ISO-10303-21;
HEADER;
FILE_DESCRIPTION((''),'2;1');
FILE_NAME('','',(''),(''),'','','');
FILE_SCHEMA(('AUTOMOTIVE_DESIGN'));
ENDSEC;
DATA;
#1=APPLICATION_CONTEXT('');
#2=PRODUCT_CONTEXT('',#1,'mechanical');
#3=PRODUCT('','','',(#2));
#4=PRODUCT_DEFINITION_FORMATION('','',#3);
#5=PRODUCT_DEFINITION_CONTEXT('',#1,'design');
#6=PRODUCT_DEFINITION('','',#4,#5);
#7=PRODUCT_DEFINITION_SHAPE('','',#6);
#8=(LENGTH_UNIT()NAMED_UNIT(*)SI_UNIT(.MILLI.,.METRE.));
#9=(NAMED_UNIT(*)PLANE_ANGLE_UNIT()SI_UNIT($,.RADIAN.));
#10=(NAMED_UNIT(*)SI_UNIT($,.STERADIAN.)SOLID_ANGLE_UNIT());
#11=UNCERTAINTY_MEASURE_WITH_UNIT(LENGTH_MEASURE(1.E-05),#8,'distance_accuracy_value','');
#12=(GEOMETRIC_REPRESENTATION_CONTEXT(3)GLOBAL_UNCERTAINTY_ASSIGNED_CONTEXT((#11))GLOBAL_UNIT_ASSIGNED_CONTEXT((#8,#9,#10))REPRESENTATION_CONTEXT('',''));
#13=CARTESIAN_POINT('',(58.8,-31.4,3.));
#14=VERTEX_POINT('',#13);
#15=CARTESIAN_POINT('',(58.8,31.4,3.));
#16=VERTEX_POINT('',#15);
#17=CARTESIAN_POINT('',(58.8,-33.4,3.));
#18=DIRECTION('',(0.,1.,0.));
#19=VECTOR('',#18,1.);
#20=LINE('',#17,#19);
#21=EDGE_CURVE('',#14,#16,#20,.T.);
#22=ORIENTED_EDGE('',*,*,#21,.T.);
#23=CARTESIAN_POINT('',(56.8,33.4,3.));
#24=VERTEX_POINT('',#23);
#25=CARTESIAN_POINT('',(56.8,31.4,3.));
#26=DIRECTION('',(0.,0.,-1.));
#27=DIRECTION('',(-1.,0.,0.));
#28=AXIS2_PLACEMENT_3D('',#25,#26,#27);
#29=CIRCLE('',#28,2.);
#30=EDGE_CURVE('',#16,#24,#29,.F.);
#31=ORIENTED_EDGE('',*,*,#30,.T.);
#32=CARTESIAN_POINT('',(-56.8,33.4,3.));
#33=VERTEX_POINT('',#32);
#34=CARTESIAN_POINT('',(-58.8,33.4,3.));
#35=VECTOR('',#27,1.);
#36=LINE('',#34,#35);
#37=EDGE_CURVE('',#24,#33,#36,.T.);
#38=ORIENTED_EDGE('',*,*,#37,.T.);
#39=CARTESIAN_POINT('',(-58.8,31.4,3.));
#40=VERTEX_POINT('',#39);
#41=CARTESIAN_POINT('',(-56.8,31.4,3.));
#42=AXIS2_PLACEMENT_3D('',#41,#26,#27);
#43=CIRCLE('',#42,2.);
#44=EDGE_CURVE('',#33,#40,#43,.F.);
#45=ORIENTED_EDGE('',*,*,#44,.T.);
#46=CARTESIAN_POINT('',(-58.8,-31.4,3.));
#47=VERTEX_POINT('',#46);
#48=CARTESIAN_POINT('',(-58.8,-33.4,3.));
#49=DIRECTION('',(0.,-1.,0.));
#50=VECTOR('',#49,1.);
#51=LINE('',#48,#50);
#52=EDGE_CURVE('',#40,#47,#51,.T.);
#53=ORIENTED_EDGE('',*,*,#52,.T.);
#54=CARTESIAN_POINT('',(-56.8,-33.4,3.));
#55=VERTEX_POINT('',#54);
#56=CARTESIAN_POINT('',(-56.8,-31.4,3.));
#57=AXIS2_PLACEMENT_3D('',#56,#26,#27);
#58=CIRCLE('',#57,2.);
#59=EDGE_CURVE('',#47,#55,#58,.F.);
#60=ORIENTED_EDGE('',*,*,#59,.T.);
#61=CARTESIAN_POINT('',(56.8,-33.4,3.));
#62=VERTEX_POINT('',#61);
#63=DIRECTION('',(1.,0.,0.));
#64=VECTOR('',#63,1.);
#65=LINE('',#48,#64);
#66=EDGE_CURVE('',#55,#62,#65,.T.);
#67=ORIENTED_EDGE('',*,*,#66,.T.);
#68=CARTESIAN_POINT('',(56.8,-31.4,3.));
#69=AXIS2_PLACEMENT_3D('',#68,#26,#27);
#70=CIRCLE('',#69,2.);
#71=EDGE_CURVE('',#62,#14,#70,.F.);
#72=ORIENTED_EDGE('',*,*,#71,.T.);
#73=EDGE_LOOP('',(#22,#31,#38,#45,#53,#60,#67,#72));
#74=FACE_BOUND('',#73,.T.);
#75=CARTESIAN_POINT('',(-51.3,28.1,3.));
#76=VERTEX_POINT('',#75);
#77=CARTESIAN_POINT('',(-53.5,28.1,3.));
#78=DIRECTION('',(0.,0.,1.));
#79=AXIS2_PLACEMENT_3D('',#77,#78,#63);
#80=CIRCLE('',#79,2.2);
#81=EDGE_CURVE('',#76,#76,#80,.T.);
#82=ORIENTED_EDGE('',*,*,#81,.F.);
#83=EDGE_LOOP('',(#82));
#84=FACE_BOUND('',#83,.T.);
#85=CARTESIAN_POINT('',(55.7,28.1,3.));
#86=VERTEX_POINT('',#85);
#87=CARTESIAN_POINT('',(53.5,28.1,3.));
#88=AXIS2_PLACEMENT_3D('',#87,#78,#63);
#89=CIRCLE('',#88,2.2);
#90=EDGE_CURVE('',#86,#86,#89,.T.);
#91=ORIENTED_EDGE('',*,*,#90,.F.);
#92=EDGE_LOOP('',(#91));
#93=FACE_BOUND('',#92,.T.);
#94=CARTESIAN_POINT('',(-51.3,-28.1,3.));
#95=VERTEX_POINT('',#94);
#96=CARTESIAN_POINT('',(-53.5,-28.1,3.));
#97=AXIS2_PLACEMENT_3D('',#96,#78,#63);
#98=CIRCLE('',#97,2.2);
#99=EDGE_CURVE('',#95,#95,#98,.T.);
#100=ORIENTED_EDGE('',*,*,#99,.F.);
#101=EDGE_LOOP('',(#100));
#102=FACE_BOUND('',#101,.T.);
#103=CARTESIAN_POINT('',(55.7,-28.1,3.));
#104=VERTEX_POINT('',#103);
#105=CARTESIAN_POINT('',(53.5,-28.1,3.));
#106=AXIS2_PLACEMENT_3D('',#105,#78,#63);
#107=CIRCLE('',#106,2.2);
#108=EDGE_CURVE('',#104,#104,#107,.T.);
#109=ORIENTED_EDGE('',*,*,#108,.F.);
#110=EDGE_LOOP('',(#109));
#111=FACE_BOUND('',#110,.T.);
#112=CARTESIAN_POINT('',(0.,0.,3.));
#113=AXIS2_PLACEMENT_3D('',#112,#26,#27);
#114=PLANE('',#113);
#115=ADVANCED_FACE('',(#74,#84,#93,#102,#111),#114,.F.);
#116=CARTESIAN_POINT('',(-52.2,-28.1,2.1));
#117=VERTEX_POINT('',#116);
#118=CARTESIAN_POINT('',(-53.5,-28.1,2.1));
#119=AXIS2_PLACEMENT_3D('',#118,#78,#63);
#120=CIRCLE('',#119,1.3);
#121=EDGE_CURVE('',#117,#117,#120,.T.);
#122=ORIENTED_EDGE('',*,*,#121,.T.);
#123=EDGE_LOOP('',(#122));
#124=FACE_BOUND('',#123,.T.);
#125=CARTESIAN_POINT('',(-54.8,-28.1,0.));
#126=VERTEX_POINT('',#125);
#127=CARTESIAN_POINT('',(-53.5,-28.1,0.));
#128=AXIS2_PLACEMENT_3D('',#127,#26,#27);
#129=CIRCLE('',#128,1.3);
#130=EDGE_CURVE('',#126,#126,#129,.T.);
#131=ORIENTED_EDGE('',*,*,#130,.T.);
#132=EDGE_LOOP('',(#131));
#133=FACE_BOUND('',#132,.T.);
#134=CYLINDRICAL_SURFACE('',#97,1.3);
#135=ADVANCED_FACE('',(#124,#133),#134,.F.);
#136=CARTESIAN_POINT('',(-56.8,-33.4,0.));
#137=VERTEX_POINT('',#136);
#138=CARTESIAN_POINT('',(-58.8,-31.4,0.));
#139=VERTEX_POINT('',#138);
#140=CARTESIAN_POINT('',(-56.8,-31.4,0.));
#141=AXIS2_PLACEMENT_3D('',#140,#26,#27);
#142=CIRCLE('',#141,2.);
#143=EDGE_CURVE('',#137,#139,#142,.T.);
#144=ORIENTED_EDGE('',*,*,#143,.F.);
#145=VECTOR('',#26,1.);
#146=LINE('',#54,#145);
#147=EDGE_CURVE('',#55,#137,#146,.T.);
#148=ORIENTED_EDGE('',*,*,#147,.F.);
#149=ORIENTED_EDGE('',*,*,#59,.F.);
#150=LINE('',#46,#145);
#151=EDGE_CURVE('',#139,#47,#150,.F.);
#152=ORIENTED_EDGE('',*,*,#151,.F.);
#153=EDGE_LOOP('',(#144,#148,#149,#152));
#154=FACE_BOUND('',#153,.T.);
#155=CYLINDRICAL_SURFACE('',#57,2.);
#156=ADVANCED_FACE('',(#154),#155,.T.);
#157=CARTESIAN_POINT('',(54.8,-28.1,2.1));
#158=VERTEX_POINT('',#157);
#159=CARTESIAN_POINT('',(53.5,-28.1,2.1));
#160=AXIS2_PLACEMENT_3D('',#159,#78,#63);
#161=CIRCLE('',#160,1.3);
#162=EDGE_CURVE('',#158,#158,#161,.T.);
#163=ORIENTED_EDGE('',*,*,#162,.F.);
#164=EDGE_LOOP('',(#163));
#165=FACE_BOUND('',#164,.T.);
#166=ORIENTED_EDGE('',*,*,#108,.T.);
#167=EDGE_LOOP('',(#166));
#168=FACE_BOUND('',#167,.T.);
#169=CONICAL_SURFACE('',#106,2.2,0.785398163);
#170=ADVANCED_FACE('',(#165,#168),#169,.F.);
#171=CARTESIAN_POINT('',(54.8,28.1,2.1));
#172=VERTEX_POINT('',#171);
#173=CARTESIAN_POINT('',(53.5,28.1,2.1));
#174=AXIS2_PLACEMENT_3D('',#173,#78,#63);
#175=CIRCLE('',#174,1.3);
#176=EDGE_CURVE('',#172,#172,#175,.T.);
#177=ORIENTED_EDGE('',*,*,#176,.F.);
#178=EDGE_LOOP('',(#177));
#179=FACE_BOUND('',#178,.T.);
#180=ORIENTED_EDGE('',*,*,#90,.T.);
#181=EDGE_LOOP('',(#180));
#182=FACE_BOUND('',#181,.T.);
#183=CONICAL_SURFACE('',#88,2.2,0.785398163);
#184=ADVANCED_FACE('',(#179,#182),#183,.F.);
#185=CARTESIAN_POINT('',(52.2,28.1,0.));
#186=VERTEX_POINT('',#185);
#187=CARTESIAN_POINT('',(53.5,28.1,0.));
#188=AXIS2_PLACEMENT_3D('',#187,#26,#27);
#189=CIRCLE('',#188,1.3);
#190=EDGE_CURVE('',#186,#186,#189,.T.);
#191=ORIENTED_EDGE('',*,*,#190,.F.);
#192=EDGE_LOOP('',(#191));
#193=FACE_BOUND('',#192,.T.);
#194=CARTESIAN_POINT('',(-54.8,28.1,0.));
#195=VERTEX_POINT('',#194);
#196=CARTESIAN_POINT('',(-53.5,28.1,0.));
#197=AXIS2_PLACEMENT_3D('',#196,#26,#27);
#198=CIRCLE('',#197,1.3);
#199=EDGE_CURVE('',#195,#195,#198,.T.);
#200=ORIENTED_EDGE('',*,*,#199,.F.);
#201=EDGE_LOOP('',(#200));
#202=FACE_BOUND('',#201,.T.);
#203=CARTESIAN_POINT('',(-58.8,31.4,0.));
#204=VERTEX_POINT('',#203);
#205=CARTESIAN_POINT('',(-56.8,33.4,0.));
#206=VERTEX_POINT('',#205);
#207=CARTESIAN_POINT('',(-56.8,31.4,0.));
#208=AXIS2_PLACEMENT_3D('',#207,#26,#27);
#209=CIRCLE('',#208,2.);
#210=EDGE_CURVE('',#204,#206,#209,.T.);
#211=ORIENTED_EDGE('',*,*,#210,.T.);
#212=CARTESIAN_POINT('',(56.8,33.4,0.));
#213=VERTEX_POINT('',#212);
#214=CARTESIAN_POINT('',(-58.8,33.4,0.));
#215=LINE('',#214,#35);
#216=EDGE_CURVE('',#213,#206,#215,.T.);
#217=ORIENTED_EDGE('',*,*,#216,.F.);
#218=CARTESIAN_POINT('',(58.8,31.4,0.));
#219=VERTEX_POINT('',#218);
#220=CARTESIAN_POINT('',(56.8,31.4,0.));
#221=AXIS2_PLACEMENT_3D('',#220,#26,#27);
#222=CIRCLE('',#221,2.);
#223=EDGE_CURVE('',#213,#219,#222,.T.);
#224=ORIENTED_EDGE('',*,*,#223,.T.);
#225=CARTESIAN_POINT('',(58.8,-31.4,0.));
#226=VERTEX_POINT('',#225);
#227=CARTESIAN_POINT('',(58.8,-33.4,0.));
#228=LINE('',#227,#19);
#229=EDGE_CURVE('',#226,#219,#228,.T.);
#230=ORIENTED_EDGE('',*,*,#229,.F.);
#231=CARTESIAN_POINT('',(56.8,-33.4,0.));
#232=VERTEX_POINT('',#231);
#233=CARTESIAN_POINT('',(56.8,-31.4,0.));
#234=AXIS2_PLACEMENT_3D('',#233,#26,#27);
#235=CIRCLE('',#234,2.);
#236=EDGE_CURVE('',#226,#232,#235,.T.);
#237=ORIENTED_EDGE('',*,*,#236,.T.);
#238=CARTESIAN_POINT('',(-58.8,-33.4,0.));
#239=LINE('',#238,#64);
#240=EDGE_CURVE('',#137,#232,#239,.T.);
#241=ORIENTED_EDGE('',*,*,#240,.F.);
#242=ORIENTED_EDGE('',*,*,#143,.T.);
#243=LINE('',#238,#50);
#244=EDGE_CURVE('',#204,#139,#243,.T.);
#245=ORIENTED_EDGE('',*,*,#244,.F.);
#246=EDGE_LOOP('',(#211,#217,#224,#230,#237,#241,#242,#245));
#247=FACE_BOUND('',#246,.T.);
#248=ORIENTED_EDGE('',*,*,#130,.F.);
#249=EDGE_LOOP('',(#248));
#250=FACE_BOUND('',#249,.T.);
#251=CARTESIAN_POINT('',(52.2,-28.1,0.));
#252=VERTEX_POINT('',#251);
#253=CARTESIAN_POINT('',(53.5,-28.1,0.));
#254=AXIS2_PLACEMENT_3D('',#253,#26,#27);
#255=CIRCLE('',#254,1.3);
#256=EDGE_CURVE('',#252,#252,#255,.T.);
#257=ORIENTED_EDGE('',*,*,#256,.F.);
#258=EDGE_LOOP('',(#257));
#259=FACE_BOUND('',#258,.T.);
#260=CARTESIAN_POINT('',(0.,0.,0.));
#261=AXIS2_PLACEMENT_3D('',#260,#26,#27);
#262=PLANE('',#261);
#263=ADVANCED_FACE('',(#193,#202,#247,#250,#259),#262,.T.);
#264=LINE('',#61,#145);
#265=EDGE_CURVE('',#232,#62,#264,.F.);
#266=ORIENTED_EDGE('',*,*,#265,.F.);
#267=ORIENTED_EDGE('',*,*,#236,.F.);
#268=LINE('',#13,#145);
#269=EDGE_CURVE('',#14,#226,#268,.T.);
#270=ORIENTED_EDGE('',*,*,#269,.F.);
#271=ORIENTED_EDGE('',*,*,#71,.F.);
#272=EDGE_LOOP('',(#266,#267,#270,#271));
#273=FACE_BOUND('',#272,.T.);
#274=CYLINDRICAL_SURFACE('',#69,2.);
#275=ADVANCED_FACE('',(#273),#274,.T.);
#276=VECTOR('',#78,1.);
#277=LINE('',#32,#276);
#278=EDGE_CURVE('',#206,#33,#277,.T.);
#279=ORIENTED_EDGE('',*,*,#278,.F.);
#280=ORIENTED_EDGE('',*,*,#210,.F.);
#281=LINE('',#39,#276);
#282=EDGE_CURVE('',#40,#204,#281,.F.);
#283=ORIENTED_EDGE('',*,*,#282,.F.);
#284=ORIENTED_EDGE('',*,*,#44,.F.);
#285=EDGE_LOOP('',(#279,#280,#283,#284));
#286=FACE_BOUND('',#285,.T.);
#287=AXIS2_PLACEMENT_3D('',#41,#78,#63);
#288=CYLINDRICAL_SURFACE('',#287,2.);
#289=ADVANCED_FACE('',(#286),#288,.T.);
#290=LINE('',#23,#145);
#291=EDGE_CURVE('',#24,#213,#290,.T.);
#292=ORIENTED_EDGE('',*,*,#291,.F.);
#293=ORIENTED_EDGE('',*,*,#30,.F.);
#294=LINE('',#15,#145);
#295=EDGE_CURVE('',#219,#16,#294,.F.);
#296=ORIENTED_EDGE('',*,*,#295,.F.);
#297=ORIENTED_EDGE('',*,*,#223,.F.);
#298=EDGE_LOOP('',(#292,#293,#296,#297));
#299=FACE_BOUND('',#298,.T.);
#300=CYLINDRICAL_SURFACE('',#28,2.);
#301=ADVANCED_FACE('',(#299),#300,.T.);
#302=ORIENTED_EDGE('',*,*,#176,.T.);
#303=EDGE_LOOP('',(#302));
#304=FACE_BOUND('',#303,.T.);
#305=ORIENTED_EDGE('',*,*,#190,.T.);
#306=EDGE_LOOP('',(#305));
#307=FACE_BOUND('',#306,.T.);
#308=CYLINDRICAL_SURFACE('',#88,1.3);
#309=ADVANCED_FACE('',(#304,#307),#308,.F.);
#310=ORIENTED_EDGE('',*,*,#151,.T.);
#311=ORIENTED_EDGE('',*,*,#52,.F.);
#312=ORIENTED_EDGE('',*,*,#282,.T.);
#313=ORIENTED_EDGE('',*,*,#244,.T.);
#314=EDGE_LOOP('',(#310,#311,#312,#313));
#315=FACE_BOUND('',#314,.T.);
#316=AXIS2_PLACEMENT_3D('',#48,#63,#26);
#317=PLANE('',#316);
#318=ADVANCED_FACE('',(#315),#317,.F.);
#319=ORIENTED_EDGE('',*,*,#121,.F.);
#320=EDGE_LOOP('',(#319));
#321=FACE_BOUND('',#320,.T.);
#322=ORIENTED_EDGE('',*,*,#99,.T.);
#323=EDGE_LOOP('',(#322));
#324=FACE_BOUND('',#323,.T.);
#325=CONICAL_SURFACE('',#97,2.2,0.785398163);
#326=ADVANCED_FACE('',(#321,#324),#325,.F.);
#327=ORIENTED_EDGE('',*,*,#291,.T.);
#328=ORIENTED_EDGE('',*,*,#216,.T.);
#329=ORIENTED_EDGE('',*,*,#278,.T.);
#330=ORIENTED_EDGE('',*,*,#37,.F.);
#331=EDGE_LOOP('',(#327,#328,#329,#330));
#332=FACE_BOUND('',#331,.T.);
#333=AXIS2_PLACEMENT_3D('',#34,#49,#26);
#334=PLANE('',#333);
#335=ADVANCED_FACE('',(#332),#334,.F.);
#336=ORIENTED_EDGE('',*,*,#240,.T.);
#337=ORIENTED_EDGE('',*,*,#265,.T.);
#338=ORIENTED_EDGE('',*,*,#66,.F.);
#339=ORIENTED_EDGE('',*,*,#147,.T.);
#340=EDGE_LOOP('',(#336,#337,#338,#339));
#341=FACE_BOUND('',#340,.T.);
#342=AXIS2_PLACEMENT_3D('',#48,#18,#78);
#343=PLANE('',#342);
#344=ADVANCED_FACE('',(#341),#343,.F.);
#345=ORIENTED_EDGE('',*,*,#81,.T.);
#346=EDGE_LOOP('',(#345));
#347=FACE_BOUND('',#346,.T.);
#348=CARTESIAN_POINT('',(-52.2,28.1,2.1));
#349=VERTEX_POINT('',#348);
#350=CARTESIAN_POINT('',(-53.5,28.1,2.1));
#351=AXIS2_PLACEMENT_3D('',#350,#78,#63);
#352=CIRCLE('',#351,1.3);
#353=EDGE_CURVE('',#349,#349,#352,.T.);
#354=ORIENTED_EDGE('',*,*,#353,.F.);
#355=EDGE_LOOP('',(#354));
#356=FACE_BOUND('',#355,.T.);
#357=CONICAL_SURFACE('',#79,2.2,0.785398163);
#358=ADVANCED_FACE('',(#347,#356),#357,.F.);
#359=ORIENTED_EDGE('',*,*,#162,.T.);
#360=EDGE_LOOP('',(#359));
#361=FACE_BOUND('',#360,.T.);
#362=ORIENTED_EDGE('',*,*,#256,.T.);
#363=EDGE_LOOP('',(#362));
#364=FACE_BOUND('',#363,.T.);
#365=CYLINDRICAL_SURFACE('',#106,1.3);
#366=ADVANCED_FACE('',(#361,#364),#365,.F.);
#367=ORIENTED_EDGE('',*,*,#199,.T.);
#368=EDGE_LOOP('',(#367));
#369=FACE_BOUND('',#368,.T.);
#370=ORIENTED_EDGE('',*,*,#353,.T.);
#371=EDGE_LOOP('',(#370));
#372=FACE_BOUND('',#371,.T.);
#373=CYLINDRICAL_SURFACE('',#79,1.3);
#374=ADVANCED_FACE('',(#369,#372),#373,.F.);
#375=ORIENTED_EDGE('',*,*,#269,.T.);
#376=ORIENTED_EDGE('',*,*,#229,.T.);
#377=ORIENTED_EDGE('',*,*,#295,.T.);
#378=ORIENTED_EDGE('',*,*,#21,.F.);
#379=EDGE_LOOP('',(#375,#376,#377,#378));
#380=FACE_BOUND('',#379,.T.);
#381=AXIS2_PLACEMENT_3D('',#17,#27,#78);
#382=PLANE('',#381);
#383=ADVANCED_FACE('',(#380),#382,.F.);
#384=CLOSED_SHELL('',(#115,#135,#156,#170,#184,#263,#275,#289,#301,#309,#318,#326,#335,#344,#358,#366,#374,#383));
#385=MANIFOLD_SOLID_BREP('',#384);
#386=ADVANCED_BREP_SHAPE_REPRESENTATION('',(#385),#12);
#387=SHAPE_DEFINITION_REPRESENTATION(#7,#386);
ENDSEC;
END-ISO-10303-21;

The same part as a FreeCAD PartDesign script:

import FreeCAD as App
import Part
import Sketcher

V = App.Vector


def edges_at(feature, points):
    """Names of the edges that pass closest to the given points."""
    edges = feature.Shape.Edges
    near = lambda p: min(range(len(edges)), key=lambda i: edges[i].distToShape(Part.Vertex(*p))[0])
    return sorted({f"Edge{near(p) + 1}" for p in points})


def add_polygon(sketch, points):
    """Adds a closed chain of lines whose ends are joined by coincident constraints."""
    first, n = sketch.GeometryCount, len(points)
    for a, b in zip(points, points[1:] + points[:1]):
        sketch.addGeometry(Part.LineSegment(App.Vector(*a, 0), App.Vector(*b, 0)), False)
    for i in range(n):
        sketch.addConstraint(Sketcher.Constraint("Coincident", first + i, 2, first + (i + 1) % n, 1))

doc = App.newDocument("Part")
body = doc.addObject("PartDesign::Body", "Body")

# Sketch on XY plane
sketch1 = body.newObject("Sketcher::SketchObject", "Sketch")
sketch1.AttachmentSupport = (doc.getObject("XY_Plane"), [""])
sketch1.MapMode = "FlatFace"
add_polygon(sketch1, [(-58.8, 33.4), (-58.8, -33.4), (58.8, -33.4), (58.8, 33.4)])  # lines 0-3
sketch1.addConstraint([
    Sketcher.Constraint("Vertical", 0),
    Sketcher.Constraint("Horizontal", 1),
    Sketcher.Constraint("Vertical", 2),
    Sketcher.Constraint("Horizontal", 3),
    Sketcher.Constraint("Symmetric", 0, 2, 2, 2, -1, 1),
    Sketcher.Constraint("DistanceX", 1, 1, 1, 2, 117.6),
    Sketcher.Constraint("DistanceY", 0, 2, 0, 1, 66.8),
])
pad1 = body.newObject("PartDesign::Pad", "Pad")
pad1.Profile = sketch1
pad1.Length = 3
doc.recompute()

fillet = body.newObject("PartDesign::Fillet", "Fillet")
fillet.Base = (pad1, edges_at(pad1, [(-58.8, 33.4, 1.5)]))
fillet.Radius = 2
doc.recompute()

fillet2 = body.newObject("PartDesign::Fillet", "Fillet001")
fillet2.Base = (fillet, edges_at(fillet, [(58.8, 33.4, 1.5)]))
fillet2.Radius = 2
doc.recompute()

fillet3 = body.newObject("PartDesign::Fillet", "Fillet002")
fillet3.Base = (fillet2, edges_at(fillet2, [(58.8, -33.4, 1.5)]))
fillet3.Radius = 2
doc.recompute()

fillet4 = body.newObject("PartDesign::Fillet", "Fillet003")
fillet4.Base = (fillet3, edges_at(fillet3, [(-58.8, -33.4, 1.5)]))
fillet4.Radius = 2

# Sketch on XY plane
sketch2 = body.newObject("Sketcher::SketchObject", "Sketch001")
sketch2.AttachmentSupport = (doc.getObject("XY_Plane"), [""])
sketch2.MapMode = "FlatFace"
sketch2.AttachmentOffset = App.Placement(V(0, 0, 3), App.Rotation())
sketch2.addGeometry([
    Part.Circle(V(53.5, 28.1, 0), V(0, 0, 1), 1.3),
    Part.Circle(V(-53.5, 28.1, 0), V(0, 0, 1), 1.3),
    Part.Circle(V(-53.5, -28.1, 0), V(0, 0, 1), 1.3),
    Part.Circle(V(53.5, -28.1, 0), V(0, 0, 1), 1.3),
], False)
sketch2.addConstraint([
    Sketcher.Constraint("Equal", 0, 1),
    Sketcher.Constraint("Equal", 1, 2),
    Sketcher.Constraint("Equal", 2, 3),
    Sketcher.Constraint("Symmetric", 0, 3, 2, 3, -1, 1),
    Sketcher.Constraint("Symmetric", 1, 3, 3, 3, -1, 1),
    Sketcher.Constraint("Symmetric", 0, 3, 1, 3, -2),
    Sketcher.Constraint("Diameter", 0, 2.6),
    Sketcher.Constraint("DistanceX", 1, 3, 0, 3, 107.0),
    Sketcher.Constraint("DistanceY", -1, 1, 0, 3, 28.1),
])
doc.recompute()
hole = body.newObject("PartDesign::Hole", "Hole")
hole.Profile = sketch2
hole.ThreadType = "None"
hole.Diameter = 2.6
hole.DepthType = "ThroughAll"
hole.HoleCutType = "Countersink"
hole.HoleCutDiameter = 4.4
hole.HoleCutCountersinkAngle = 90

doc.recompute()
